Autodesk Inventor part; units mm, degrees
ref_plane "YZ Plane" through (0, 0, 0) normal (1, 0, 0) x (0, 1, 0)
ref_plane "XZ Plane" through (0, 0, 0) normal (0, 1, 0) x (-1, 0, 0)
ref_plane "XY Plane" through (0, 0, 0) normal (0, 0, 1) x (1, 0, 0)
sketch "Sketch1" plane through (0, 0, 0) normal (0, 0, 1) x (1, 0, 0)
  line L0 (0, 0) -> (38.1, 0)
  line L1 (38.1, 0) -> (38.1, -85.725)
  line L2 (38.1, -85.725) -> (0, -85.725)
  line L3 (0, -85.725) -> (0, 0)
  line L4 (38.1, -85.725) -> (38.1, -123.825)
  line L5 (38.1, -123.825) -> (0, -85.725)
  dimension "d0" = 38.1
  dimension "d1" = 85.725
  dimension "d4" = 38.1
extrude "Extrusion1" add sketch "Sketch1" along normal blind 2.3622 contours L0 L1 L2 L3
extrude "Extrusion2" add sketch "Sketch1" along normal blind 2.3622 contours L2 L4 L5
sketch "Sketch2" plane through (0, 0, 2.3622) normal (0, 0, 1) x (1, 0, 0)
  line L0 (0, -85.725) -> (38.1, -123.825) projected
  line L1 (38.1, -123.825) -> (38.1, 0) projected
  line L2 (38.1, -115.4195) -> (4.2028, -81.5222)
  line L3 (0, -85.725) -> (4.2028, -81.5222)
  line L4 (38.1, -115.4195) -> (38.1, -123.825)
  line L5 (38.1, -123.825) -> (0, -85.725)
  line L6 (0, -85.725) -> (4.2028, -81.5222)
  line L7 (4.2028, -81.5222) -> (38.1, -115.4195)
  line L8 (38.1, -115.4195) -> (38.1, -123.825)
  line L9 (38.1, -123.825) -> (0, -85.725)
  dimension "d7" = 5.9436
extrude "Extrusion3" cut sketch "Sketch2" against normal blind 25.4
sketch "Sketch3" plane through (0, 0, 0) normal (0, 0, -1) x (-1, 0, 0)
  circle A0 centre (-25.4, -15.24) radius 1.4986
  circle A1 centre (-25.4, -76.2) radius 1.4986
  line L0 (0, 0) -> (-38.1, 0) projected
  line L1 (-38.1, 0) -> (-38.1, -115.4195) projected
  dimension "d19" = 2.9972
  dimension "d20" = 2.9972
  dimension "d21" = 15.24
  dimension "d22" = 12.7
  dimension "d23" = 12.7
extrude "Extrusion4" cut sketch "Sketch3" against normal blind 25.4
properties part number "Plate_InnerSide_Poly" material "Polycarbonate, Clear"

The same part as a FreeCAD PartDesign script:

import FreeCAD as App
import Part
import Sketcher
Q = App.Units.Quantity


def add_polygon(sketch, points):
    """Adds a closed chain of lines whose ends are joined by coincident constraints."""
    first, n = sketch.GeometryCount, len(points)
    for a, b in zip(points, points[1:] + points[:1]):
        sketch.addGeometry(Part.LineSegment(App.Vector(*a, 0), App.Vector(*b, 0)), False)
    for i in range(n):
        sketch.addConstraint(Sketcher.Constraint("Coincident", first + i, 2, first + (i + 1) % n, 1))

doc = App.newDocument("Part")
params = doc.addObject("Spreadsheet::Sheet", "Params")
for row, (alias, value) in enumerate([
    ("sketch1_width", "1.5 in"),
    ("sketch1_height", "3.375 in"),
    ("pad1_length", "0.093 in"),
    ("sketch2_width", "1.5 in"),
    ("pad2_length", "0.093 in"),
    ("sketch3_length", "0.234 in"),
    ("pocket1_length", "1 in"),
    ("sketch4_diameter", "0.118 in"),
    ("pocket2_length", "1 in"),
], start=1):
    params.set(f"A{row}", alias)
    params.set(f"B{row}", "=" + value)
    params.setAlias(f"B{row}", alias)

body = doc.addObject("PartDesign::Body", "Body")

sketch1 = doc.addObject("Sketcher::SketchObject", "Sketch")
body.addObject(sketch1)
sketch1.AttachmentSupport = (doc.XY_Plane, [""])
sketch1.MapMode = "FlatFace"
add_polygon(sketch1, [(38, 0), (0, 0), (0, -86), (38, -86)])
sketch1.addConstraint([
    Sketcher.Constraint("Horizontal", 0),
    Sketcher.Constraint("Vertical", 1),
    Sketcher.Constraint("Horizontal", 2),
    Sketcher.Constraint("Vertical", 3),
    Sketcher.Constraint("Coincident", 0, 2, -1, 1),
    Sketcher.Constraint("DistanceX", 0, 2, 0, 1, Q("1.5 in")),
    Sketcher.Constraint("DistanceY", 1, 2, 1, 1, Q("3.375 in")),
])
sketch1.setExpression("Constraints[9]", "Params.sketch1_width")
sketch1.setExpression("Constraints[10]", "Params.sketch1_height")
pad1 = doc.addObject("PartDesign::Pad", "Pad")
body.addObject(pad1)
pad1.Profile = sketch1
pad1.setExpression("Length", "Params.pad1_length")

sketch2 = doc.addObject("Sketcher::SketchObject", "Sketch001")
body.addObject(sketch2)
sketch2.AttachmentSupport = (doc.XY_Plane, [""])
sketch2.MapMode = "FlatFace"
add_polygon(sketch2, [(38, -86), (0, -86), (38, -124)])
sketch2.addConstraint([
    Sketcher.Constraint("Horizontal", 0),
    Sketcher.Constraint("Vertical", 2),
    Sketcher.Constraint("PointOnObject", 0, 2, -2),
    Sketcher.Constraint("Equal", 0, 2),
    Sketcher.Constraint("DistanceX", 0, 2, 0, 1, Q("1.5 in")),
    Sketcher.Constraint("DistanceY", 0, 2, -1, 1, Q("3.375 in")),
])
sketch2.setExpression("Constraints[7]", "Params.sketch2_width")
pad2 = doc.addObject("PartDesign::Pad", "Pad001")
body.addObject(pad2)
pad2.Profile = sketch2
pad2.setExpression("Length", "Params.pad2_length")

sketch3 = doc.addObject("Sketcher::SketchObject", "Sketch002")
body.addObject(sketch3)
sketch3.AttachmentSupport = (doc.XY_Plane, [""])
sketch3.MapMode = "FlatFace"
sketch3.AttachmentOffset = App.Placement(App.Vector(0, 0, 0.093 * 25.4), App.Rotation())
add_polygon(sketch3, [(4, -82), (0, -86), (38, -124), (38, -115)])
sketch3.addConstraint([
    Sketcher.Constraint("Vertical", 2),
    Sketcher.Constraint("PointOnObject", 0, 2, -2),
    Sketcher.Constraint("Perpendicular", 0, 1),
    Sketcher.Constraint("Parallel", 1, 3),
    Sketcher.Constraint("Distance", 0, Q("0.234 in")),
    Sketcher.Constraint("Angle", 0, Q("-135 deg")),
    Sketcher.Constraint("DistanceX", -1, 1, 1, 2, Q("1.5 in")),
    Sketcher.Constraint("DistanceY", 0, 2, -1, 1, Q("3.375 in")),
])
sketch3.setExpression("Constraints[8]", "Params.sketch3_length")
pocket1 = doc.addObject("PartDesign::Pocket", "Pocket")
body.addObject(pocket1)
pocket1.Profile = sketch3
pocket1.setExpression("Length", "Params.pocket1_length")

sketch4 = doc.addObject("Sketcher::SketchObject", "Sketch003")
body.addObject(sketch4)
sketch4.AttachmentSupport = (doc.XY_Plane, [""])
sketch4.MapMode = "FlatFace"
sketch4.addGeometry([
    Part.Circle(App.Vector(25.4, -15.2, 0), App.Vector(0, 0, 1), 1.5),
    Part.Circle(App.Vector(25.4, -76.2, 0), App.Vector(0, 0, 1), 1.5),
], False)
sketch4.addConstraint([
    Sketcher.Constraint("Equal", 0, 1),
    Sketcher.Constraint("Vertical", 0, 3, 1, 3),
    Sketcher.Constraint("Diameter", 0, Q("0.118 in")),
    Sketcher.Constraint("DistanceY", 0, 3, -1, 1, Q("0.6 in")),
    Sketcher.Constraint("DistanceX", -1, 1, 0, 3, Q("1 in")),
    Sketcher.Constraint("DistanceY", 1, 3, -1, 1, Q("3 in")),
])
sketch4.setExpression("Constraints[2]", "Params.sketch4_diameter")
pocket2 = doc.addObject("PartDesign::Pocket", "Pocket001")
body.addObject(pocket2)
pocket2.Profile = sketch4
pocket2.setExpression("Length", "Params.pocket2_length")
pocket2.Reversed = True

doc.recompute()
